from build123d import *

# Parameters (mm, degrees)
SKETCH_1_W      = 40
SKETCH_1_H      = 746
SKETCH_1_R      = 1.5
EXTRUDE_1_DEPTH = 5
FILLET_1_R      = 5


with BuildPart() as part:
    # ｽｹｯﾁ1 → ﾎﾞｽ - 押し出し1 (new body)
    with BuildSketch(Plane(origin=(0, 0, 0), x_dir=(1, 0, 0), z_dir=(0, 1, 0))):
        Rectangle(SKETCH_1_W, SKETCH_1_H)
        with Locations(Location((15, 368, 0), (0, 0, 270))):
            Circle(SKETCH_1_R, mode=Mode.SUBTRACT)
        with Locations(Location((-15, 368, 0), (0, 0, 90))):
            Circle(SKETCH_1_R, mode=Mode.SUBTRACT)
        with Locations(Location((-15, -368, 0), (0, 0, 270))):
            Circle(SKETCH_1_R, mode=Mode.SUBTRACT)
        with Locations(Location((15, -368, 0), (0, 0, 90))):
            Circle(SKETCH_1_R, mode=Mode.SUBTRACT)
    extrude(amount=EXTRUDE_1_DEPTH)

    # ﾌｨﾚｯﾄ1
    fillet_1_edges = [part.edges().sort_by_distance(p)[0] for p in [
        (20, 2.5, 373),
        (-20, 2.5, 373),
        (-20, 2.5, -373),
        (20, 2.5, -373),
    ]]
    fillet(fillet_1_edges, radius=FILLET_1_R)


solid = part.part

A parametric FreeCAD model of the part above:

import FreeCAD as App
import Part
import Sketcher

V = App.Vector
Q = App.Units.Quantity


def edges_at(feature, points):
    """Names of the edges that pass closest to the given points."""
    edges = feature.Shape.Edges
    near = lambda p: min(range(len(edges)), key=lambda i: edges[i].distToShape(Part.Vertex(*p))[0])
    return sorted({f"Edge{near(p) + 1}" for p in points})

doc = App.newDocument("Part")
body = doc.addObject("PartDesign::Body", "Body")

sketch1 = body.newObject("Sketcher::SketchObject", "Sketch")
sketch1.AttachmentSupport = (doc.getObject("XZ_Plane"), [""])
sketch1.MapMode = "FlatFace"
sketch1.addGeometry(Part.LineSegment(V(-20, -373, 0), V(-20, 373, 0)), False)
sketch1.addGeometry(Part.LineSegment(V(-20, 373, 0), V(20, 373, 0)), False)
sketch1.addGeometry(Part.LineSegment(V(20, 373, 0), V(20, -373, 0)), False)
sketch1.addGeometry(Part.LineSegment(V(20, -373, 0), V(-20, -373, 0)), False)
sketch1.addGeometry(Part.Circle(V(-15, 368, 0), V(0, 0, 1), 1.5), False)
sketch1.addGeometry(Part.Circle(V(15, 368, 0), V(0, 0, 1), 1.5), False)
sketch1.addGeometry(Part.Circle(V(-15, -368, 0), V(0, 0, 1), 1.5), False)
sketch1.addGeometry(Part.Circle(V(15, -368, 0), V(0, 0, 1), 1.5), False)
sketch1.addConstraint(Sketcher.Constraint("Coincident", 0, 2, 1, 1))
sketch1.addConstraint(Sketcher.Constraint("Coincident", 1, 2, 2, 1))
sketch1.addConstraint(Sketcher.Constraint("Coincident", 2, 2, 3, 1))
sketch1.addConstraint(Sketcher.Constraint("Coincident", 3, 2, 0, 1))
sketch1.addConstraint(Sketcher.Constraint("Vertical", 0))
sketch1.addConstraint(Sketcher.Constraint("Horizontal", 1))
sketch1.addConstraint(Sketcher.Constraint("Vertical", 2))
sketch1.addConstraint(Sketcher.Constraint("Horizontal", 3))
sketch1.addConstraint(Sketcher.Constraint("Equal", 4, 5))
sketch1.addConstraint(Sketcher.Constraint("Equal", 5, 6))
sketch1.addConstraint(Sketcher.Constraint("Equal", 6, 7))
sketch1.addConstraint(Sketcher.Constraint("Symmetric", 5, 3, 6, 3, -1, 1))
sketch1.addConstraint(Sketcher.Constraint("Symmetric", 4, 3, 7, 3, -1, 1))
sketch1.addConstraint(Sketcher.Constraint("Symmetric", 0, 2, 2, 2, -1, 1))
sketch1.addConstraint(Sketcher.Constraint("Symmetric", 4, 3, 5, 3, -2))
sketch1.addConstraint(Sketcher.Constraint("Diameter", 4, Q("3 mm")))
sketch1.addConstraint(Sketcher.Constraint("DistanceX", 1, 1, 1, 2, Q("40 mm")))
sketch1.addConstraint(Sketcher.Constraint("DistanceY", 0, 1, 0, 2, Q("746 mm")))
sketch1.addConstraint(Sketcher.Constraint("DistanceX", 4, 3, -1, 1, Q("15 mm")))
sketch1.addConstraint(Sketcher.Constraint("DistanceY", -1, 1, 4, 3, Q("368 mm")))
pad1 = body.newObject("PartDesign::Pad", "Pad")
pad1.Profile = sketch1
pad1.Length = 5
pad1.Reversed = True
doc.recompute()

fillet = body.newObject("PartDesign::Fillet", "Fillet")
fillet.Base = (pad1, edges_at(pad1, [
    (20, 2.5, 373),
    (-20, 2.5, 373),
    (-20, 2.5, -373),
    (20, 2.5, -373),
]))
fillet.Radius = 5

doc.recompute()
